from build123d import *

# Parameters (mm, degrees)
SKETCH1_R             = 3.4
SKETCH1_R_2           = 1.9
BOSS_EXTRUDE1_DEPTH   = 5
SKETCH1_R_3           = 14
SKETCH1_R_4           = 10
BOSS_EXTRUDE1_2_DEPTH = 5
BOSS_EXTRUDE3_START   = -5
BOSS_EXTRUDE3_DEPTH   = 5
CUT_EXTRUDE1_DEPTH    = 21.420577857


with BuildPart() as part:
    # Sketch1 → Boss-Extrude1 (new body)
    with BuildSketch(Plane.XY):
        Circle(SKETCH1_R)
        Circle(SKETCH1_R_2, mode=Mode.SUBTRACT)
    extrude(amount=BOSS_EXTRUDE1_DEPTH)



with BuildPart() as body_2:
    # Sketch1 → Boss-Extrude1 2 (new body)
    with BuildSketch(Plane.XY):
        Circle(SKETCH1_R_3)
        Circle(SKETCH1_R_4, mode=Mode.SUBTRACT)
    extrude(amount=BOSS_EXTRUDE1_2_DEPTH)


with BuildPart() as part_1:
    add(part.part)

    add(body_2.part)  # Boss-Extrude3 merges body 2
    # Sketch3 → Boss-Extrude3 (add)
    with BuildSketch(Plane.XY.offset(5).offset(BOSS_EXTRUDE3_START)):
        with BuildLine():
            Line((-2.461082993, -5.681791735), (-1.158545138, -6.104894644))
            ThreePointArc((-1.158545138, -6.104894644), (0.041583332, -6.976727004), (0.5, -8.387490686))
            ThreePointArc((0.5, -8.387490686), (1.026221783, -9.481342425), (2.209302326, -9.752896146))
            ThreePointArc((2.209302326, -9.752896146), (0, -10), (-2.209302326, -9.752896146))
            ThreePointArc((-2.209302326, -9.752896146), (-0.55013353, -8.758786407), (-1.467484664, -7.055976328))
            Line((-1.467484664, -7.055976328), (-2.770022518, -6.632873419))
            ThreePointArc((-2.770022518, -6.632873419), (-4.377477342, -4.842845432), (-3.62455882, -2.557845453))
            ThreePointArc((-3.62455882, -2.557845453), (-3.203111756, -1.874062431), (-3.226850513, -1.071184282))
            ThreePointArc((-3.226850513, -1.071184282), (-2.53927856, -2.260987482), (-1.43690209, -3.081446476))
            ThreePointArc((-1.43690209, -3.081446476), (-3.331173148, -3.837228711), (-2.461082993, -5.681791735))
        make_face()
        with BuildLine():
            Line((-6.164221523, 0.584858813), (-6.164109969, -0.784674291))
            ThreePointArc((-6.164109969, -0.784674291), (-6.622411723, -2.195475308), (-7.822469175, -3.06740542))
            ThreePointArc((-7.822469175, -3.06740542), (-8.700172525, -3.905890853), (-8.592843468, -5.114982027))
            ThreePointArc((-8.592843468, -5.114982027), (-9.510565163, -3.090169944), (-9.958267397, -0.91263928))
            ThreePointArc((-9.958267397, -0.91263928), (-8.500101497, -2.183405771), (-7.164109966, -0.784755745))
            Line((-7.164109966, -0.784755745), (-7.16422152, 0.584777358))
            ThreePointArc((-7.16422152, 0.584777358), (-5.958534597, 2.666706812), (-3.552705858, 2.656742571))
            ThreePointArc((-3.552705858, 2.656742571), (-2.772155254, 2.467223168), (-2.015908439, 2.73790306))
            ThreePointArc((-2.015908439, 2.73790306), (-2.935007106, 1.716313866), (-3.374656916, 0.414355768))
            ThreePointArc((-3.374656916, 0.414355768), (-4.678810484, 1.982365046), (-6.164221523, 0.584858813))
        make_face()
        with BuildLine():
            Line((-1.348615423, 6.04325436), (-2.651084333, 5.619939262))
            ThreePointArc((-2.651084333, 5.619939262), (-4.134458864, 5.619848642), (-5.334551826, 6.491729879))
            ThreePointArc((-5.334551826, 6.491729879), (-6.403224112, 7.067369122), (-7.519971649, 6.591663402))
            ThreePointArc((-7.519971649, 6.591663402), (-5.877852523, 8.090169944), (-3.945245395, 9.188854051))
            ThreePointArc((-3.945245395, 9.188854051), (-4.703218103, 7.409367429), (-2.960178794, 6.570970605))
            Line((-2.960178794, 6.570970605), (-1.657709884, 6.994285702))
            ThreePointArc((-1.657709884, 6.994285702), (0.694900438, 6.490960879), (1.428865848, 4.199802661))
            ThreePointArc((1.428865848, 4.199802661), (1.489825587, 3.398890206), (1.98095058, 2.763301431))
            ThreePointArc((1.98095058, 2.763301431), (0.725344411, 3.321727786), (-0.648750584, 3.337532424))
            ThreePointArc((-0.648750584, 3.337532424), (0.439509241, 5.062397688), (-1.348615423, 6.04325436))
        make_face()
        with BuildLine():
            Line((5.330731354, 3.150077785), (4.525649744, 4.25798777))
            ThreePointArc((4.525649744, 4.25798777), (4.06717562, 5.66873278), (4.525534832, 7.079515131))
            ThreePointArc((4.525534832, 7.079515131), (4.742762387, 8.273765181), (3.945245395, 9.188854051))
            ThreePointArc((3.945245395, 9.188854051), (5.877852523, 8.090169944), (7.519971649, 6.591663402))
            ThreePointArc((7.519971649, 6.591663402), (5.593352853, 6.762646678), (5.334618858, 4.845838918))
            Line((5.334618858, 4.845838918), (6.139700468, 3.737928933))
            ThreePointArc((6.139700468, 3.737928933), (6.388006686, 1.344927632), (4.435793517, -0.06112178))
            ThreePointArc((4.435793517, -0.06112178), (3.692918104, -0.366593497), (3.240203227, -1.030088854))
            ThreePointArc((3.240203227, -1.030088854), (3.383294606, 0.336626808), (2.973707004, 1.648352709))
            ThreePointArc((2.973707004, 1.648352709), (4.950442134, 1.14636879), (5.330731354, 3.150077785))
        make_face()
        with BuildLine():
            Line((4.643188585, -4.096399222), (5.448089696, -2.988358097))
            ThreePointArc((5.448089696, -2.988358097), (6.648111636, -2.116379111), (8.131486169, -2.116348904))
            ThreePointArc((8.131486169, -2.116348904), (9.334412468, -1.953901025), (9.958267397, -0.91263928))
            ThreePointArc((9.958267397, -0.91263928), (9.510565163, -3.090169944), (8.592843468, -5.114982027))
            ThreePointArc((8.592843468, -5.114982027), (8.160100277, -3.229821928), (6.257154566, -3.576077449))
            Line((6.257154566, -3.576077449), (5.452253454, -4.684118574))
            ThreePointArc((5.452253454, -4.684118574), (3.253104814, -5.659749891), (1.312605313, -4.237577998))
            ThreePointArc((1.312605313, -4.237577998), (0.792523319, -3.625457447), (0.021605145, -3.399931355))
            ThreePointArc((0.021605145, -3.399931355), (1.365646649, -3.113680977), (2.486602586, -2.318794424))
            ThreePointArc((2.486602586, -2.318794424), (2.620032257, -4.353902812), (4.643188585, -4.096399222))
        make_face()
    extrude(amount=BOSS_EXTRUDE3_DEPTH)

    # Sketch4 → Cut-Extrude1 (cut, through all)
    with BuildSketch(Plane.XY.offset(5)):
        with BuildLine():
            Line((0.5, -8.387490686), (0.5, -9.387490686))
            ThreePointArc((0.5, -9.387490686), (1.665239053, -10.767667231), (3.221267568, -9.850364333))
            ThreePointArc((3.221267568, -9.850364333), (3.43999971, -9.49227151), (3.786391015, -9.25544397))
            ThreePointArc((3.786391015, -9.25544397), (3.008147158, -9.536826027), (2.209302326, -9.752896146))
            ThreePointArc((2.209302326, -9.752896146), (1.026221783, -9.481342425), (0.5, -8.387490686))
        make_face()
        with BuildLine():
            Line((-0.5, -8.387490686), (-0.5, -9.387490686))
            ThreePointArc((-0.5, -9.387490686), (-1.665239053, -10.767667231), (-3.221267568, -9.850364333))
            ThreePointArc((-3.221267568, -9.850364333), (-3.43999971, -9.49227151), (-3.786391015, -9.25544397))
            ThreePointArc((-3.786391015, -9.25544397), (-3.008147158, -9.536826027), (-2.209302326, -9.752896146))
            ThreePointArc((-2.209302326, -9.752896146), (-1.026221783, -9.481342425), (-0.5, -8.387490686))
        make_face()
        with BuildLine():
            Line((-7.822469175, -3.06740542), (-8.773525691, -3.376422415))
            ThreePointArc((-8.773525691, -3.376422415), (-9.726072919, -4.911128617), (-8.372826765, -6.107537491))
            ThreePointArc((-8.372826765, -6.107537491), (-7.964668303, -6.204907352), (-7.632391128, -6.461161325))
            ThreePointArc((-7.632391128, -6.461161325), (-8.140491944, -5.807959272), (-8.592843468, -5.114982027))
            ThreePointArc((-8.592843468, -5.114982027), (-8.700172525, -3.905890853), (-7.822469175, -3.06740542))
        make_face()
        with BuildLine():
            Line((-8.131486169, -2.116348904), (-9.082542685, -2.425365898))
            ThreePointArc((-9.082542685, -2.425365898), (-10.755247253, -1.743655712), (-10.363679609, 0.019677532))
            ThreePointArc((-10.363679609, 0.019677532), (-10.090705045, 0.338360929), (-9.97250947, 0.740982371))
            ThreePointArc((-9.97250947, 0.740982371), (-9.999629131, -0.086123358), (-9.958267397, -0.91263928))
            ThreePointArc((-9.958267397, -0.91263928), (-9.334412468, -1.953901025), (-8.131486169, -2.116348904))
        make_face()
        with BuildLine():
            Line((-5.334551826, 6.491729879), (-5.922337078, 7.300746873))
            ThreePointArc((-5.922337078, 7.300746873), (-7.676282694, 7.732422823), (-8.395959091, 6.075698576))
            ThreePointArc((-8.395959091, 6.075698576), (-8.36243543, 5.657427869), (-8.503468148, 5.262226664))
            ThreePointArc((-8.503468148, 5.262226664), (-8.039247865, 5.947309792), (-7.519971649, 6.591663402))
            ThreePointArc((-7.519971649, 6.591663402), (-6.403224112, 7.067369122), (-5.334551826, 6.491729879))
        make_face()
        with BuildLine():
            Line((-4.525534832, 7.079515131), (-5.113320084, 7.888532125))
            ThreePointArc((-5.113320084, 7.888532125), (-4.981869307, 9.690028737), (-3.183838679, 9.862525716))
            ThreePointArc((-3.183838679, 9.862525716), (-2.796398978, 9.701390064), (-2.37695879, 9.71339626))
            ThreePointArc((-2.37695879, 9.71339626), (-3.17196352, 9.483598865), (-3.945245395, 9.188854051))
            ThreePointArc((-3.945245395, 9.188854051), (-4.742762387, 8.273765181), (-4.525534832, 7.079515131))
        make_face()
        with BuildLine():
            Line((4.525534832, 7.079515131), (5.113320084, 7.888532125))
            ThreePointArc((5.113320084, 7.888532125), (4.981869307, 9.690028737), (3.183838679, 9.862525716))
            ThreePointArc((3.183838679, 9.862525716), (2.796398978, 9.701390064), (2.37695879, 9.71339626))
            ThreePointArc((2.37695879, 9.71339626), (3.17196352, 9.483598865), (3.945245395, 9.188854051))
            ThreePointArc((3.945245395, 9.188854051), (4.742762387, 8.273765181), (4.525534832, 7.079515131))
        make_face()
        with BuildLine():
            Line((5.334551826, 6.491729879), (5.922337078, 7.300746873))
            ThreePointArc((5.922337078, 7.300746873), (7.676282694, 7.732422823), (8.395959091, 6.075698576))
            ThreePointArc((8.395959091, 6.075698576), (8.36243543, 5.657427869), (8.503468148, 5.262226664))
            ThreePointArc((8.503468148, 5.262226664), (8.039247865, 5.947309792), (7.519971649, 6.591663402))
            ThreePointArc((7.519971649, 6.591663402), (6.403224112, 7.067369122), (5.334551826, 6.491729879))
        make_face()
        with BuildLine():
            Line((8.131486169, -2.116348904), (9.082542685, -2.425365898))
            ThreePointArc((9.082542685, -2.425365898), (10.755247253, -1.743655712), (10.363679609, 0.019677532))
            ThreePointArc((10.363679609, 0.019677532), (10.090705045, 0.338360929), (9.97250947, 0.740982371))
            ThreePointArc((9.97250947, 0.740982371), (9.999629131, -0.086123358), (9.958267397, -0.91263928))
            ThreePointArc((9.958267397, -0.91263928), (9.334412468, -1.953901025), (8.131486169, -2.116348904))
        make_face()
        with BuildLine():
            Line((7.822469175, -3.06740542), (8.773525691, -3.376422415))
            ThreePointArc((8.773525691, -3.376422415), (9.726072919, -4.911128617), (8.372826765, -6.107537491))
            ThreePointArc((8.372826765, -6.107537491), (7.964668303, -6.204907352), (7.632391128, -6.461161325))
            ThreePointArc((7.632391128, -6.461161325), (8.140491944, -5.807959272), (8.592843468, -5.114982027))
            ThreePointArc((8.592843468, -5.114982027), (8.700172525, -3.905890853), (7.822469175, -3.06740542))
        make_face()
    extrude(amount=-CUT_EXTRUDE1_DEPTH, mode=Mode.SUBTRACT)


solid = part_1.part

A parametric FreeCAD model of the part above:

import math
import FreeCAD as App
import Part
import Sketcher
from FreeCAD import Vector
Q = App.Units.Quantity

doc = App.newDocument("Part")
body = doc.addObject("PartDesign::Body", "Body")

sketch1 = body.newObject("Sketcher::SketchObject", "Sketch")
sketch1.AttachmentSupport = (doc.getObject("XY_Plane"), [""])
sketch1.MapMode = "FlatFace"
sketch1.addGeometry([
    Part.Circle(Vector(0, 0, 0), Vector(0, 0, 1), 3.4),
    Part.Circle(Vector(0, 0, 0), Vector(0, 0, 1), 1.9),
], False)
sketch1.addConstraint([
    Sketcher.Constraint("Coincident", 0, 3, -1, 1),
    Sketcher.Constraint("Coincident", 1, 3, -1, 1),
    Sketcher.Constraint("Diameter", 0, 6.8),
    Sketcher.Constraint("Diameter", 1, 3.8),
])
pad1 = body.newObject("PartDesign::Pad", "Pad")
pad1.Profile = sketch1
pad1.Length = 5
body2 = doc.addObject("PartDesign::Body", "Body001")

sketch2 = body2.newObject("Sketcher::SketchObject", "Sketch001")
sketch2.AttachmentSupport = (doc.getObject("XY_Plane001"), [""])
sketch2.MapMode = "FlatFace"
sketch2.addGeometry([
    Part.Circle(Vector(0, 0, 0), Vector(0, 0, 1), 14),
    Part.Circle(Vector(0, 0, 0), Vector(0, 0, 1), 10),
], False)
sketch2.addConstraint([
    Sketcher.Constraint("Coincident", 0, 3, -1, 1),
    Sketcher.Constraint("Coincident", 1, 3, -1, 1),
    Sketcher.Constraint("Diameter", 0, 28.0),
    Sketcher.Constraint("Diameter", 1, 20.0),
])
pad2 = body2.newObject("PartDesign::Pad", "Pad001")
pad2.Profile = sketch2
pad2.Length = 5
body.AllowCompound = True
doc.recompute()

boolean = body.newObject("PartDesign::Boolean", "Boolean")
boolean.Type = "Fuse"
boolean.addObjects([body2])

sketch3 = body.newObject("Sketcher::SketchObject", "Sketch002")
sketch3.AttachmentSupport = (doc.getObject("XY_Plane"), [""])
sketch3.MapMode = "FlatFace"
sketch3.addGeometry([
    Part.LineSegment(Vector(-1.158545, -6.104895, 0), Vector(-2.461083, -5.681792, 0)),
    Part.ArcOfCircle(Part.Circle(Vector(-2.028568, -4.350277, 0), Vector(0, 0, 1), 1.4), math.radians(65), math.radians(252.004667)),
    Part.ArcOfCircle(Part.Circle(Vector(0, 0, 0), Vector(0, 0, 1), 3.4), math.radians(-161.635914), math.radians(-115)),
    Part.ArcOfCircle(Part.Circle(Vector(-4.555554, -1.51226, 0), Vector(0, 0, 1), 1.4), math.radians(-48.317957), math.radians(18.364086)),
    Part.ArcOfCircle(Part.Circle(Vector(-2.028568, -4.350277, 0), Vector(0, 0, 1), 2.4), math.radians(131.682043), math.radians(252.004667)),
    Part.LineSegment(Vector(-2.770023, -6.632873, 0), Vector(-1.467485, -7.055976, 0)),
    Part.ArcOfCircle(Part.Circle(Vector(-1.9, -8.387491, 0), Vector(0, 0, 1), 1.4), math.radians(-102.763676), math.radians(72.004667)),
    Part.ArcOfCircle(Part.Circle(Vector(0, 0, 0), Vector(0, 0, 1), 10), math.radians(-102.763676), math.radians(-77.236324)),
    Part.ArcOfCircle(Part.Circle(Vector(1.9, -8.387491, 0), Vector(0, 0, 1), 1.4), math.radians(180), math.radians(282.763676)),
    Part.ArcOfCircle(Part.Circle(Vector(-1.9, -8.387491, 0), Vector(0, 0, 1), 2.4), math.radians(0), math.radians(72.004667)),
    Part.LineSegment(Vector(-6.16411, -0.784674, 0), Vector(-6.164222, 0.584859, 0)),
    Part.ArcOfCircle(Part.Circle(Vector(-4.764222, 0.584973, 0), Vector(0, 0, 1), 1.4), math.radians(-7), math.radians(180.004667)),
    Part.ArcOfCircle(Part.Circle(Vector(0, 0, 0), Vector(0, 0, 1), 3.4), math.radians(126.364086), math.radians(173)),
    Part.ArcOfCircle(Part.Circle(Vector(-2.845988, 3.865275, 0), Vector(0, 0, 1), 1.4), math.radians(-120.317957), math.radians(-53.635914)),
    Part.ArcOfCircle(Part.Circle(Vector(-4.764222, 0.584973, 0), Vector(0, 0, 1), 2.4), math.radians(59.682043), math.radians(180.004667)),
    Part.LineSegment(Vector(-7.164222, 0.584777, 0), Vector(-7.16411, -0.784756, 0)),
    Part.ArcOfCircle(Part.Circle(Vector(-8.56411, -0.78487, 0), Vector(0, 0, 1), 1.4), math.radians(-174.763676), math.radians(0.004667)),
    Part.ArcOfCircle(Part.Circle(Vector(0, 0, 0), Vector(0, 0, 1), 10), math.radians(-174.763676), math.radians(-149.236324)),
    Part.ArcOfCircle(Part.Circle(Vector(-7.389845, -4.398885, 0), Vector(0, 0, 1), 1.4), math.radians(108), math.radians(210.763676)),
    Part.ArcOfCircle(Part.Circle(Vector(-8.56411, -0.78487, 0), Vector(0, 0, 1), 2.4), math.radians(-72), math.radians(0.004667)),
    Part.LineSegment(Vector(-2.651084, 5.619939, 0), Vector(-1.348615, 6.043254, 0)),
    Part.ArcOfCircle(Part.Circle(Vector(-0.915883, 4.71181, 0), Vector(0, 0, 1), 1.4), math.radians(-79), math.radians(108.004667)),
    Part.ArcOfCircle(Part.Circle(Vector(0, 0, 0), Vector(0, 0, 1), 3.4), math.radians(54.364086), math.radians(101)),
    Part.ArcOfCircle(Part.Circle(Vector(2.796636, 3.901131, 0), Vector(0, 0, 1), 1.4), math.radians(167.682043), math.radians(234.364086)),
    Part.ArcOfCircle(Part.Circle(Vector(-0.915883, 4.71181, 0), Vector(0, 0, 1), 2.4), math.radians(-12.317957), math.radians(108.004667)),
    Part.LineSegment(Vector(-1.65771, 6.994286, 0), Vector(-2.960179, 6.570971, 0)),
    Part.ArcOfCircle(Part.Circle(Vector(-3.392911, 7.902414, 0), Vector(0, 0, 1), 1.4), math.radians(113.236324), math.radians(288.004667)),
    Part.ArcOfCircle(Part.Circle(Vector(0, 0, 0), Vector(0, 0, 1), 10), math.radians(113.236324), math.radians(138.763676)),
    Part.ArcOfCircle(Part.Circle(Vector(-6.467176, 5.668831, 0), Vector(0, 0, 1), 1.4), math.radians(36), math.radians(138.763676)),
    Part.ArcOfCircle(Part.Circle(Vector(-3.392911, 7.902414, 0), Vector(0, 0, 1), 2.4), math.radians(-144), math.radians(-71.995333)),
    Part.LineSegment(Vector(4.52565, 4.257988, 0), Vector(5.330731, 3.150078, 0)),
    Part.ArcOfCircle(Part.Circle(Vector(4.198175, 2.327086, 0), Vector(0, 0, 1), 1.4), math.radians(-151), math.radians(36.004667)),
    Part.ArcOfCircle(Part.Circle(Vector(0, 0, 0), Vector(0, 0, 1), 3.4), math.radians(-17.635914), math.radians(29)),
    Part.ArcOfCircle(Part.Circle(Vector(4.574405, -1.454243, 0), Vector(0, 0, 1), 1.4), math.radians(95.682043), math.radians(162.364086)),
    Part.ArcOfCircle(Part.Circle(Vector(4.198175, 2.327086, 0), Vector(0, 0, 1), 2.4), math.radians(-84.317957), math.radians(36.004667)),
    Part.LineSegment(Vector(6.1397, 3.737929, 0), Vector(5.334619, 4.845839, 0)),
    Part.ArcOfCircle(Part.Circle(Vector(6.467176, 5.668831, 0), Vector(0, 0, 1), 1.4), math.radians(41.236324), math.radians(216.004667)),
    Part.ArcOfCircle(Part.Circle(Vector(0, 0, 0), Vector(0, 0, 1), 10), math.radians(41.236324), math.radians(66.763676)),
    Part.ArcOfCircle(Part.Circle(Vector(3.392911, 7.902414, 0), Vector(0, 0, 1), 1.4), math.radians(-36), math.radians(66.763676)),
    Part.ArcOfCircle(Part.Circle(Vector(6.467176, 5.668831, 0), Vector(0, 0, 1), 2.4), math.radians(144), math.radians(216.004667)),
    Part.LineSegment(Vector(5.44809, -2.988358, 0), Vector(4.643189, -4.096399, 0)),
    Part.ArcOfCircle(Part.Circle(Vector(3.510498, -3.273592, 0), Vector(0, 0, 1), 1.4), math.radians(137), math.radians(324.004667)),
    Part.ArcOfCircle(Part.Circle(Vector(0, 0, 0), Vector(0, 0, 1), 3.4), math.radians(-89.635914), math.radians(-43)),
    Part.ArcOfCircle(Part.Circle(Vector(0.030501, -4.799903, 0), Vector(0, 0, 1), 1.4), math.radians(23.682043), math.radians(90.364086)),
    Part.ArcOfCircle(Part.Circle(Vector(3.510498, -3.273592, 0), Vector(0, 0, 1), 2.4), math.radians(-156.317957), math.radians(-35.995333)),
    Part.LineSegment(Vector(5.452253, -4.684119, 0), Vector(6.257155, -3.576077, 0)),
    Part.ArcOfCircle(Part.Circle(Vector(7.389845, -4.398885, 0), Vector(0, 0, 1), 1.4), math.radians(-30.763676), math.radians(144.004667)),
    Part.ArcOfCircle(Part.Circle(Vector(0, 0, 0), Vector(0, 0, 1), 10), math.radians(-30.763676), math.radians(-5.236324)),
    Part.ArcOfCircle(Part.Circle(Vector(8.56411, -0.78487, 0), Vector(0, 0, 1), 1.4), math.radians(-108), math.radians(-5.236324)),
    Part.ArcOfCircle(Part.Circle(Vector(7.389845, -4.398885, 0), Vector(0, 0, 1), 2.4), math.radians(72), math.radians(144.004667)),
], False)
sketch3.addConstraint([
    Sketcher.Constraint("Tangent", 0, 2, 1, 2),
    Sketcher.Constraint("Tangent", 1, 1, 2, 2),
    Sketcher.Constraint("Tangent", 2, 1, 3, 2),
    Sketcher.Constraint("Tangent", 3, 1, 4, 1),
    Sketcher.Constraint("Tangent", 4, 2, 5, 1),
    Sketcher.Constraint("Tangent", 5, 2, 6, 2),
    Sketcher.Constraint("Tangent", 6, 1, 7, 1),
    Sketcher.Constraint("Tangent", 7, 2, 8, 2),
    Sketcher.Constraint("Tangent", 8, 1, 9, 1),
    Sketcher.Constraint("Tangent", 9, 2, 0, 1),
    Sketcher.Constraint("Tangent", 10, 2, 11, 2),
    Sketcher.Constraint("Tangent", 11, 1, 12, 2),
    Sketcher.Constraint("Tangent", 12, 1, 13, 2),
    Sketcher.Constraint("Tangent", 13, 1, 14, 1),
    Sketcher.Constraint("Tangent", 14, 2, 15, 1),
    Sketcher.Constraint("Tangent", 15, 2, 16, 2),
    Sketcher.Constraint("Tangent", 16, 1, 17, 1),
    Sketcher.Constraint("Tangent", 17, 2, 18, 2),
    Sketcher.Constraint("Tangent", 18, 1, 19, 1),
    Sketcher.Constraint("Tangent", 19, 2, 10, 1),
    Sketcher.Constraint("Tangent", 20, 2, 21, 2),
    Sketcher.Constraint("Tangent", 21, 1, 22, 2),
    Sketcher.Constraint("Tangent", 22, 1, 23, 2),
    Sketcher.Constraint("Tangent", 23, 1, 24, 1),
    Sketcher.Constraint("Tangent", 24, 2, 25, 1),
    Sketcher.Constraint("Tangent", 25, 2, 26, 2),
    Sketcher.Constraint("Tangent", 26, 1, 27, 1),
    Sketcher.Constraint("Tangent", 27, 2, 28, 2),
    Sketcher.Constraint("Tangent", 28, 1, 29, 1),
    Sketcher.Constraint("Tangent", 29, 2, 20, 1),
    Sketcher.Constraint("Tangent", 30, 2, 31, 2),
    Sketcher.Constraint("Tangent", 31, 1, 32, 2),
    Sketcher.Constraint("Tangent", 32, 1, 33, 2),
    Sketcher.Constraint("Tangent", 33, 1, 34, 1),
    Sketcher.Constraint("Tangent", 34, 2, 35, 1),
    Sketcher.Constraint("Tangent", 35, 2, 36, 2),
    Sketcher.Constraint("Tangent", 36, 1, 37, 1),
    Sketcher.Constraint("Tangent", 37, 2, 38, 2),
    Sketcher.Constraint("Tangent", 38, 1, 39, 1),
    Sketcher.Constraint("Tangent", 39, 2, 30, 1),
    Sketcher.Constraint("Tangent", 40, 2, 41, 2),
    Sketcher.Constraint("Tangent", 41, 1, 42, 2),
    Sketcher.Constraint("Tangent", 42, 1, 43, 2),
    Sketcher.Constraint("Tangent", 43, 1, 44, 1),
    Sketcher.Constraint("Tangent", 44, 2, 45, 1),
    Sketcher.Constraint("Tangent", 45, 2, 46, 2),
    Sketcher.Constraint("Tangent", 46, 1, 47, 1),
    Sketcher.Constraint("Tangent", 47, 2, 48, 2),
    Sketcher.Constraint("Tangent", 48, 1, 49, 1),
    Sketcher.Constraint("Tangent", 49, 2, 40, 1),
    Sketcher.Constraint("Coincident", 2, 3, -1, 1),
    Sketcher.Constraint("Coincident", 7, 3, -1, 1),
    Sketcher.Constraint("Coincident", 12, 3, -1, 1),
    Sketcher.Constraint("Coincident", 17, 3, -1, 1),
    Sketcher.Constraint("Coincident", 22, 3, -1, 1),
    Sketcher.Constraint("Coincident", 27, 3, -1, 1),
    Sketcher.Constraint("Coincident", 32, 3, -1, 1),
    Sketcher.Constraint("Coincident", 37, 3, -1, 1),
    Sketcher.Constraint("Coincident", 42, 3, -1, 1),
    Sketcher.Constraint("Coincident", 47, 3, -1, 1),
    Sketcher.Constraint("Coincident", 4, 3, 1, 3),
    Sketcher.Constraint("Coincident", 9, 3, 6, 3),
    Sketcher.Constraint("Coincident", 14, 3, 11, 3),
    Sketcher.Constraint("Coincident", 19, 3, 16, 3),
    Sketcher.Constraint("Coincident", 24, 3, 21, 3),
    Sketcher.Constraint("Coincident", 29, 3, 26, 3),
    Sketcher.Constraint("Coincident", 34, 3, 31, 3),
    Sketcher.Constraint("Coincident", 39, 3, 36, 3),
    Sketcher.Constraint("Coincident", 44, 3, 41, 3),
    Sketcher.Constraint("Coincident", 49, 3, 46, 3),
    Sketcher.Constraint("Equal", 1, 3),
    Sketcher.Constraint("Equal", 3, 6),
    Sketcher.Constraint("Equal", 6, 8),
    Sketcher.Constraint("Equal", 4, 9),
    Sketcher.Constraint("Equal", 8, 11),
    Sketcher.Constraint("Equal", 2, 12),
    Sketcher.Constraint("Equal", 11, 13),
    Sketcher.Constraint("Equal", 9, 14),
    Sketcher.Constraint("Equal", 13, 16),
    Sketcher.Constraint("Equal", 7, 17),
    Sketcher.Constraint("Equal", 16, 18),
    Sketcher.Constraint("Equal", 14, 19),
    Sketcher.Constraint("Equal", 18, 21),
    Sketcher.Constraint("Equal", 12, 22),
    Sketcher.Constraint("Equal", 21, 23),
    Sketcher.Constraint("Equal", 19, 24),
    Sketcher.Constraint("Equal", 23, 26),
    Sketcher.Constraint("Equal", 17, 27),
    Sketcher.Constraint("Equal", 26, 28),
    Sketcher.Constraint("Equal", 24, 29),
    Sketcher.Constraint("Equal", 28, 31),
    Sketcher.Constraint("Equal", 22, 32),
    Sketcher.Constraint("Equal", 31, 33),
    Sketcher.Constraint("Equal", 29, 34),
    Sketcher.Constraint("Equal", 33, 36),
    Sketcher.Constraint("Equal", 27, 37),
    Sketcher.Constraint("Equal", 36, 38),
    Sketcher.Constraint("Equal", 34, 39),
    Sketcher.Constraint("Equal", 38, 41),
    Sketcher.Constraint("Equal", 32, 42),
    Sketcher.Constraint("Equal", 41, 43),
    Sketcher.Constraint("Equal", 39, 44),
    Sketcher.Constraint("Equal", 43, 46),
    Sketcher.Constraint("Equal", 37, 47),
    Sketcher.Constraint("Equal", 46, 48),
    Sketcher.Constraint("Equal", 44, 49),
    Sketcher.Constraint("Horizontal", 6, 3, 8, 3),
    Sketcher.Constraint("Horizontal", 28, 3, 36, 3),
    Sketcher.Constraint("Horizontal", 18, 3, 46, 3),
    Sketcher.Constraint("Equal", 5, 10),
    Sketcher.Constraint("Equal", 15, 20),
    Sketcher.Constraint("Equal", 25, 30),
    Sketcher.Constraint("Equal", 35, 40),
    Sketcher.Constraint("Radius", 7, 10.0),
    Sketcher.Constraint("Radius", 1, 1.4),
    Sketcher.Constraint("Radius", 2, 3.4),
    Sketcher.Constraint("Radius", 4, 2.4),
    Sketcher.Constraint("DistanceX", -1, 1, 43, 3, 0.030501),
    Sketcher.Constraint("DistanceY", -1, 1, 22, 1, 2.763301),
    Sketcher.Constraint("DistanceX", -1, 1, 34, 2, 6.1397),
])
pad3 = body.newObject("PartDesign::Pad", "Pad002")
pad3.Profile = sketch3
pad3.Length = 5

sketch4 = body.newObject("Sketcher::SketchObject", "Sketch003")
sketch4.AttachmentSupport = (doc.getObject("XY_Plane"), [""])
sketch4.MapMode = "FlatFace"
sketch4.AttachmentOffset = App.Placement(Vector(0, 0, 5), App.Rotation())
sketch4.addGeometry([
    Part.LineSegment(Vector(0.5, -8.387491, 0), Vector(0.5, -9.387491, 0)),
    Part.ArcOfCircle(Part.Circle(Vector(1.9, -9.387491, 0), Vector(0, 0, 1), 1.4), math.radians(-180), math.radians(-19.306656)),
    Part.ArcOfCircle(Part.Circle(Vector(4.16503, -10.180988, 0), Vector(0, 0, 1), 1), math.radians(112.249411), math.radians(160.693344)),
    Part.ArcOfCircle(Part.Circle(Vector(0, 0, 0), Vector(0, 0, 1), 10), math.radians(-77.236324), math.radians(-67.750589)),
    Part.ArcOfCircle(Part.Circle(Vector(1.9, -8.387491, 0), Vector(0, 0, 1), 1.4), math.radians(180), math.radians(282.763676)),
    Part.LineSegment(Vector(-0.5, -9.387491, 0), Vector(-0.5, -8.387491, 0)),
    Part.ArcOfCircle(Part.Circle(Vector(-1.9, -8.387491, 0), Vector(0, 0, 1), 1.4), math.radians(-102.763676), math.radians(0)),
    Part.ArcOfCircle(Part.Circle(Vector(0, 0, 0), Vector(0, 0, 1), 10), math.radians(-112.249411), math.radians(-102.763676)),
    Part.ArcOfCircle(Part.Circle(Vector(-4.16503, -10.180988, 0), Vector(0, 0, 1), 1), math.radians(19.306656), math.radians(67.750589)),
    Part.ArcOfCircle(Part.Circle(Vector(-1.9, -9.387491, 0), Vector(0, 0, 1), 1.4), math.radians(-160.693344), math.radians(0)),
    Part.LineSegment(Vector(-7.822469, -3.067405, 0), Vector(-8.773526, -3.376422, 0)),
    Part.ArcOfCircle(Part.Circle(Vector(-8.340902, -4.707902, 0), Vector(0, 0, 1), 1.4), math.radians(108), math.radians(268.693344)),
    Part.ArcOfCircle(Part.Circle(Vector(-8.39563, -7.107277, 0), Vector(0, 0, 1), 1), math.radians(40.249411), math.radians(88.693344)),
    Part.ArcOfCircle(Part.Circle(Vector(0, 0, 0), Vector(0, 0, 1), 10), math.radians(-149.236324), math.radians(-139.750589)),
    Part.ArcOfCircle(Part.Circle(Vector(-7.389845, -4.398885, 0), Vector(0, 0, 1), 1.4), math.radians(108), math.radians(210.763676)),
    Part.LineSegment(Vector(-9.082543, -2.425366, 0), Vector(-8.131486, -2.116349, 0)),
    Part.ArcOfCircle(Part.Circle(Vector(-8.56411, -0.78487, 0), Vector(0, 0, 1), 1.4), math.radians(-174.763676), math.radians(-72)),
    Part.ArcOfCircle(Part.Circle(Vector(0, 0, 0), Vector(0, 0, 1), 10), math.radians(175.750589), math.radians(185.236324)),
    Part.ArcOfCircle(Part.Circle(Vector(-10.96976, 0.815081, 0), Vector(0, 0, 1), 1), math.radians(-52.693344), math.radians(-4.249411)),
    Part.ArcOfCircle(Part.Circle(Vector(-9.515166, -1.093887, 0), Vector(0, 0, 1), 1.4), math.radians(127.306656), math.radians(288)),
    Part.LineSegment(Vector(-5.334552, 6.49173, 0), Vector(-5.922337, 7.300747, 0)),
    Part.ArcOfCircle(Part.Circle(Vector(-7.054961, 6.477848, 0), Vector(0, 0, 1), 1.4), math.radians(36), math.radians(196.693344)),
    Part.ArcOfCircle(Part.Circle(Vector(-9.353815, 5.788449, 0), Vector(0, 0, 1), 1), math.radians(-31.750589), math.radians(16.693344)),
    Part.ArcOfCircle(Part.Circle(Vector(0, 0, 0), Vector(0, 0, 1), 10), math.radians(138.763676), math.radians(148.249411)),
    Part.ArcOfCircle(Part.Circle(Vector(-6.467176, 5.668831, 0), Vector(0, 0, 1), 1.4), math.radians(36), math.radians(138.763676)),
    Part.LineSegment(Vector(-5.11332, 7.888532, 0), Vector(-4.525535, 7.079515, 0)),
    Part.ArcOfCircle(Part.Circle(Vector(-3.392911, 7.902414, 0), Vector(0, 0, 1), 1.4), math.radians(113.236324), math.radians(216)),
    Part.ArcOfCircle(Part.Circle(Vector(0, 0, 0), Vector(0, 0, 1), 10), math.radians(103.750589), math.radians(113.236324)),
    Part.ArcOfCircle(Part.Circle(Vector(-2.614655, 10.684736, 0), Vector(0, 0, 1), 1), math.radians(-124.693344), math.radians(-76.249411)),
    Part.ArcOfCircle(Part.Circle(Vector(-3.980696, 8.711431, 0), Vector(0, 0, 1), 1.4), math.radians(55.306656), math.radians(216)),
    Part.LineSegment(Vector(4.525535, 7.079515, 0), Vector(5.11332, 7.888532, 0)),
    Part.ArcOfCircle(Part.Circle(Vector(3.980696, 8.711431, 0), Vector(0, 0, 1), 1.4), math.radians(-36), math.radians(124.693344)),
    Part.ArcOfCircle(Part.Circle(Vector(2.614655, 10.684736, 0), Vector(0, 0, 1), 1), math.radians(-103.750589), math.radians(-55.306656)),
    Part.ArcOfCircle(Part.Circle(Vector(0, 0, 0), Vector(0, 0, 1), 10), math.radians(66.763676), math.radians(76.249411)),
    Part.ArcOfCircle(Part.Circle(Vector(3.392911, 7.902414, 0), Vector(0, 0, 1), 1.4), math.radians(-36), math.radians(66.763676)),
    Part.LineSegment(Vector(5.922337, 7.300747, 0), Vector(5.334552, 6.49173, 0)),
    Part.ArcOfCircle(Part.Circle(Vector(6.467176, 5.668831, 0), Vector(0, 0, 1), 1.4), math.radians(41.236324), math.radians(144)),
    Part.ArcOfCircle(Part.Circle(Vector(0, 0, 0), Vector(0, 0, 1), 10), math.radians(31.750589), math.radians(41.236324)),
    Part.ArcOfCircle(Part.Circle(Vector(9.353815, 5.788449, 0), Vector(0, 0, 1), 1), math.radians(163.306656), math.radians(211.750589)),
    Part.ArcOfCircle(Part.Circle(Vector(7.054961, 6.477848, 0), Vector(0, 0, 1), 1.4), math.radians(-16.693344), math.radians(144)),
    Part.LineSegment(Vector(8.131486, -2.116349, 0), Vector(9.082543, -2.425366, 0)),
    Part.ArcOfCircle(Part.Circle(Vector(9.515166, -1.093887, 0), Vector(0, 0, 1), 1.4), math.radians(-108), math.radians(52.693344)),
    Part.ArcOfCircle(Part.Circle(Vector(10.96976, 0.815081, 0), Vector(0, 0, 1), 1), math.radians(-175.750589), math.radians(-127.306656)),
    Part.ArcOfCircle(Part.Circle(Vector(0, 0, 0), Vector(0, 0, 1), 10), math.radians(-5.236324), math.radians(4.249411)),
    Part.ArcOfCircle(Part.Circle(Vector(8.56411, -0.78487, 0), Vector(0, 0, 1), 1.4), math.radians(-108), math.radians(-5.236324)),
    Part.LineSegment(Vector(8.773526, -3.376422, 0), Vector(7.822469, -3.067405, 0)),
    Part.ArcOfCircle(Part.Circle(Vector(7.389845, -4.398885, 0), Vector(0, 0, 1), 1.4), math.radians(-30.763676), math.radians(72)),
    Part.ArcOfCircle(Part.Circle(Vector(0, 0, 0), Vector(0, 0, 1), 10), math.radians(-40.249411), math.radians(-30.763676)),
    Part.ArcOfCircle(Part.Circle(Vector(8.39563, -7.107277, 0), Vector(0, 0, 1), 1), math.radians(91.306656), math.radians(139.750589)),
    Part.ArcOfCircle(Part.Circle(Vector(8.340902, -4.707902, 0), Vector(0, 0, 1), 1.4), math.radians(-88.693344), math.radians(72)),
], False)
sketch4.addConstraint([
    Sketcher.Constraint("Tangent", 0, 2, 1, 1),
    Sketcher.Constraint("Tangent", 1, 2, 2, 2),
    Sketcher.Constraint("Tangent", 2, 1, 3, 2),
    Sketcher.Constraint("Tangent", 3, 1, 4, 2),
    Sketcher.Constraint("Tangent", 4, 1, 0, 1),
    Sketcher.Constraint("Tangent", 5, 2, 6, 2),
    Sketcher.Constraint("Tangent", 6, 1, 7, 2),
    Sketcher.Constraint("Tangent", 7, 1, 8, 2),
    Sketcher.Constraint("Tangent", 8, 1, 9, 1),
    Sketcher.Constraint("Tangent", 9, 2, 5, 1),
    Sketcher.Constraint("Tangent", 10, 2, 11, 1),
    Sketcher.Constraint("Tangent", 11, 2, 12, 2),
    Sketcher.Constraint("Tangent", 12, 1, 13, 2),
    Sketcher.Constraint("Tangent", 13, 1, 14, 2),
    Sketcher.Constraint("Tangent", 14, 1, 10, 1),
    Sketcher.Constraint("Tangent", 15, 2, 16, 2),
    Sketcher.Constraint("Tangent", 16, 1, 17, 2),
    Sketcher.Constraint("Tangent", 17, 1, 18, 2),
    Sketcher.Constraint("Tangent", 18, 1, 19, 1),
    Sketcher.Constraint("Tangent", 19, 2, 15, 1),
    Sketcher.Constraint("Tangent", 20, 2, 21, 1),
    Sketcher.Constraint("Tangent", 21, 2, 22, 2),
    Sketcher.Constraint("Tangent", 22, 1, 23, 2),
    Sketcher.Constraint("Tangent", 23, 1, 24, 2),
    Sketcher.Constraint("Tangent", 24, 1, 20, 1),
    Sketcher.Constraint("Tangent", 25, 2, 26, 2),
    Sketcher.Constraint("Tangent", 26, 1, 27, 2),
    Sketcher.Constraint("Tangent", 27, 1, 28, 2),
    Sketcher.Constraint("Tangent", 28, 1, 29, 1),
    Sketcher.Constraint("Tangent", 29, 2, 25, 1),
    Sketcher.Constraint("Tangent", 30, 2, 31, 1),
    Sketcher.Constraint("Tangent", 31, 2, 32, 2),
    Sketcher.Constraint("Tangent", 32, 1, 33, 2),
    Sketcher.Constraint("Tangent", 33, 1, 34, 2),
    Sketcher.Constraint("Tangent", 34, 1, 30, 1),
    Sketcher.Constraint("Tangent", 35, 2, 36, 2),
    Sketcher.Constraint("Tangent", 36, 1, 37, 2),
    Sketcher.Constraint("Tangent", 37, 1, 38, 2),
    Sketcher.Constraint("Tangent", 38, 1, 39, 1),
    Sketcher.Constraint("Tangent", 39, 2, 35, 1),
    Sketcher.Constraint("Tangent", 40, 2, 41, 1),
    Sketcher.Constraint("Tangent", 41, 2, 42, 2),
    Sketcher.Constraint("Tangent", 42, 1, 43, 2),
    Sketcher.Constraint("Tangent", 43, 1, 44, 2),
    Sketcher.Constraint("Tangent", 44, 1, 40, 1),
    Sketcher.Constraint("Tangent", 45, 2, 46, 2),
    Sketcher.Constraint("Tangent", 46, 1, 47, 2),
    Sketcher.Constraint("Tangent", 47, 1, 48, 2),
    Sketcher.Constraint("Tangent", 48, 1, 49, 1),
    Sketcher.Constraint("Tangent", 49, 2, 45, 1),
    Sketcher.Constraint("Vertical", 0),
    Sketcher.Constraint("Vertical", 5),
    Sketcher.Constraint("Coincident", 3, 3, -1, 1),
    Sketcher.Constraint("Coincident", 7, 3, -1, 1),
    Sketcher.Constraint("Coincident", 13, 3, -1, 1),
    Sketcher.Constraint("Coincident", 17, 3, -1, 1),
    Sketcher.Constraint("Coincident", 23, 3, -1, 1),
    Sketcher.Constraint("Coincident", 27, 3, -1, 1),
    Sketcher.Constraint("Coincident", 33, 3, -1, 1),
    Sketcher.Constraint("Coincident", 37, 3, -1, 1),
    Sketcher.Constraint("Coincident", 43, 3, -1, 1),
    Sketcher.Constraint("Coincident", 47, 3, -1, 1),
    Sketcher.Constraint("Equal", 1, 4),
    Sketcher.Constraint("Equal", 4, 6),
    Sketcher.Constraint("Equal", 3, 7),
    Sketcher.Constraint("Equal", 2, 8),
    Sketcher.Constraint("Equal", 6, 9),
    Sketcher.Constraint("Equal", 9, 11),
    Sketcher.Constraint("Equal", 8, 12),
    Sketcher.Constraint("Equal", 7, 13),
    Sketcher.Constraint("Equal", 11, 14),
    Sketcher.Constraint("Equal", 14, 16),
    Sketcher.Constraint("Equal", 13, 17),
    Sketcher.Constraint("Equal", 12, 18),
    Sketcher.Constraint("Equal", 16, 19),
    Sketcher.Constraint("Equal", 19, 21),
    Sketcher.Constraint("Equal", 18, 22),
    Sketcher.Constraint("Equal", 17, 23),
    Sketcher.Constraint("Equal", 21, 24),
    Sketcher.Constraint("Equal", 24, 26),
    Sketcher.Constraint("Equal", 23, 27),
    Sketcher.Constraint("Equal", 22, 28),
    Sketcher.Constraint("Equal", 26, 29),
    Sketcher.Constraint("Equal", 29, 31),
    Sketcher.Constraint("Equal", 28, 32),
    Sketcher.Constraint("Equal", 27, 33),
    Sketcher.Constraint("Equal", 31, 34),
    Sketcher.Constraint("Equal", 34, 36),
    Sketcher.Constraint("Equal", 33, 37),
    Sketcher.Constraint("Equal", 32, 38),
    Sketcher.Constraint("Equal", 36, 39),
    Sketcher.Constraint("Equal", 39, 41),
    Sketcher.Constraint("Equal", 38, 42),
    Sketcher.Constraint("Equal", 37, 43),
    Sketcher.Constraint("Equal", 41, 44),
    Sketcher.Constraint("Equal", 44, 46),
    Sketcher.Constraint("Equal", 43, 47),
    Sketcher.Constraint("Equal", 42, 48),
    Sketcher.Constraint("Equal", 46, 49),
    Sketcher.Constraint("Symmetric", 1, 3, 9, 3, -2),
    Sketcher.Constraint("Symmetric", 29, 3, 31, 3, -2),
    Sketcher.Constraint("Symmetric", 21, 3, 39, 3, -2),
    Sketcher.Constraint("Symmetric", 19, 3, 41, 3, -2),
    Sketcher.Constraint("Symmetric", 11, 3, 49, 3, -2),
    Sketcher.Constraint("Parallel", 10, 15),
    Sketcher.Constraint("Parallel", 20, 25),
    Sketcher.Constraint("Parallel", 30, 35),
    Sketcher.Constraint("Parallel", 40, 45),
    Sketcher.Constraint("Horizontal", 26, 3, 34, 3),
    Sketcher.Constraint("Horizontal", 16, 3, 44, 3),
    Sketcher.Constraint("Equal", 10, 15),
    Sketcher.Constraint("Equal", 15, 20),
    Sketcher.Constraint("Equal", 20, 25),
    Sketcher.Constraint("Radius", 2, 1.0),
    Sketcher.Constraint("Radius", 3, 10.0),
    Sketcher.Constraint("Radius", 1, 1.4),
    Sketcher.Constraint("DistanceY", 0, 2, 0, 1, 1.0),
    Sketcher.Constraint("Angle", 10, Q("-162 deg")),
    Sketcher.Constraint("Angle", 20, Q("126 deg")),
    Sketcher.Constraint("Distance", 10, 1.0),
    Sketcher.Constraint("DistanceX", -1, 1, 1, 3, 1.9),
    Sketcher.Constraint("DistanceX", 11, 3, -1, 1, 8.340902),
    Sketcher.Constraint("DistanceY", -1, 1, 21, 2, 6.075699),
    Sketcher.Constraint("DistanceX", 16, 3, -1, 1, 8.56411),
    Sketcher.Constraint("DistanceX", 26, 3, -1, 1, 3.392911),
])
pocket1 = body.newObject("PartDesign::Pocket", "Pocket")
pocket1.Profile = sketch4
pocket1.Type = "ThroughAll"

doc.recompute()
